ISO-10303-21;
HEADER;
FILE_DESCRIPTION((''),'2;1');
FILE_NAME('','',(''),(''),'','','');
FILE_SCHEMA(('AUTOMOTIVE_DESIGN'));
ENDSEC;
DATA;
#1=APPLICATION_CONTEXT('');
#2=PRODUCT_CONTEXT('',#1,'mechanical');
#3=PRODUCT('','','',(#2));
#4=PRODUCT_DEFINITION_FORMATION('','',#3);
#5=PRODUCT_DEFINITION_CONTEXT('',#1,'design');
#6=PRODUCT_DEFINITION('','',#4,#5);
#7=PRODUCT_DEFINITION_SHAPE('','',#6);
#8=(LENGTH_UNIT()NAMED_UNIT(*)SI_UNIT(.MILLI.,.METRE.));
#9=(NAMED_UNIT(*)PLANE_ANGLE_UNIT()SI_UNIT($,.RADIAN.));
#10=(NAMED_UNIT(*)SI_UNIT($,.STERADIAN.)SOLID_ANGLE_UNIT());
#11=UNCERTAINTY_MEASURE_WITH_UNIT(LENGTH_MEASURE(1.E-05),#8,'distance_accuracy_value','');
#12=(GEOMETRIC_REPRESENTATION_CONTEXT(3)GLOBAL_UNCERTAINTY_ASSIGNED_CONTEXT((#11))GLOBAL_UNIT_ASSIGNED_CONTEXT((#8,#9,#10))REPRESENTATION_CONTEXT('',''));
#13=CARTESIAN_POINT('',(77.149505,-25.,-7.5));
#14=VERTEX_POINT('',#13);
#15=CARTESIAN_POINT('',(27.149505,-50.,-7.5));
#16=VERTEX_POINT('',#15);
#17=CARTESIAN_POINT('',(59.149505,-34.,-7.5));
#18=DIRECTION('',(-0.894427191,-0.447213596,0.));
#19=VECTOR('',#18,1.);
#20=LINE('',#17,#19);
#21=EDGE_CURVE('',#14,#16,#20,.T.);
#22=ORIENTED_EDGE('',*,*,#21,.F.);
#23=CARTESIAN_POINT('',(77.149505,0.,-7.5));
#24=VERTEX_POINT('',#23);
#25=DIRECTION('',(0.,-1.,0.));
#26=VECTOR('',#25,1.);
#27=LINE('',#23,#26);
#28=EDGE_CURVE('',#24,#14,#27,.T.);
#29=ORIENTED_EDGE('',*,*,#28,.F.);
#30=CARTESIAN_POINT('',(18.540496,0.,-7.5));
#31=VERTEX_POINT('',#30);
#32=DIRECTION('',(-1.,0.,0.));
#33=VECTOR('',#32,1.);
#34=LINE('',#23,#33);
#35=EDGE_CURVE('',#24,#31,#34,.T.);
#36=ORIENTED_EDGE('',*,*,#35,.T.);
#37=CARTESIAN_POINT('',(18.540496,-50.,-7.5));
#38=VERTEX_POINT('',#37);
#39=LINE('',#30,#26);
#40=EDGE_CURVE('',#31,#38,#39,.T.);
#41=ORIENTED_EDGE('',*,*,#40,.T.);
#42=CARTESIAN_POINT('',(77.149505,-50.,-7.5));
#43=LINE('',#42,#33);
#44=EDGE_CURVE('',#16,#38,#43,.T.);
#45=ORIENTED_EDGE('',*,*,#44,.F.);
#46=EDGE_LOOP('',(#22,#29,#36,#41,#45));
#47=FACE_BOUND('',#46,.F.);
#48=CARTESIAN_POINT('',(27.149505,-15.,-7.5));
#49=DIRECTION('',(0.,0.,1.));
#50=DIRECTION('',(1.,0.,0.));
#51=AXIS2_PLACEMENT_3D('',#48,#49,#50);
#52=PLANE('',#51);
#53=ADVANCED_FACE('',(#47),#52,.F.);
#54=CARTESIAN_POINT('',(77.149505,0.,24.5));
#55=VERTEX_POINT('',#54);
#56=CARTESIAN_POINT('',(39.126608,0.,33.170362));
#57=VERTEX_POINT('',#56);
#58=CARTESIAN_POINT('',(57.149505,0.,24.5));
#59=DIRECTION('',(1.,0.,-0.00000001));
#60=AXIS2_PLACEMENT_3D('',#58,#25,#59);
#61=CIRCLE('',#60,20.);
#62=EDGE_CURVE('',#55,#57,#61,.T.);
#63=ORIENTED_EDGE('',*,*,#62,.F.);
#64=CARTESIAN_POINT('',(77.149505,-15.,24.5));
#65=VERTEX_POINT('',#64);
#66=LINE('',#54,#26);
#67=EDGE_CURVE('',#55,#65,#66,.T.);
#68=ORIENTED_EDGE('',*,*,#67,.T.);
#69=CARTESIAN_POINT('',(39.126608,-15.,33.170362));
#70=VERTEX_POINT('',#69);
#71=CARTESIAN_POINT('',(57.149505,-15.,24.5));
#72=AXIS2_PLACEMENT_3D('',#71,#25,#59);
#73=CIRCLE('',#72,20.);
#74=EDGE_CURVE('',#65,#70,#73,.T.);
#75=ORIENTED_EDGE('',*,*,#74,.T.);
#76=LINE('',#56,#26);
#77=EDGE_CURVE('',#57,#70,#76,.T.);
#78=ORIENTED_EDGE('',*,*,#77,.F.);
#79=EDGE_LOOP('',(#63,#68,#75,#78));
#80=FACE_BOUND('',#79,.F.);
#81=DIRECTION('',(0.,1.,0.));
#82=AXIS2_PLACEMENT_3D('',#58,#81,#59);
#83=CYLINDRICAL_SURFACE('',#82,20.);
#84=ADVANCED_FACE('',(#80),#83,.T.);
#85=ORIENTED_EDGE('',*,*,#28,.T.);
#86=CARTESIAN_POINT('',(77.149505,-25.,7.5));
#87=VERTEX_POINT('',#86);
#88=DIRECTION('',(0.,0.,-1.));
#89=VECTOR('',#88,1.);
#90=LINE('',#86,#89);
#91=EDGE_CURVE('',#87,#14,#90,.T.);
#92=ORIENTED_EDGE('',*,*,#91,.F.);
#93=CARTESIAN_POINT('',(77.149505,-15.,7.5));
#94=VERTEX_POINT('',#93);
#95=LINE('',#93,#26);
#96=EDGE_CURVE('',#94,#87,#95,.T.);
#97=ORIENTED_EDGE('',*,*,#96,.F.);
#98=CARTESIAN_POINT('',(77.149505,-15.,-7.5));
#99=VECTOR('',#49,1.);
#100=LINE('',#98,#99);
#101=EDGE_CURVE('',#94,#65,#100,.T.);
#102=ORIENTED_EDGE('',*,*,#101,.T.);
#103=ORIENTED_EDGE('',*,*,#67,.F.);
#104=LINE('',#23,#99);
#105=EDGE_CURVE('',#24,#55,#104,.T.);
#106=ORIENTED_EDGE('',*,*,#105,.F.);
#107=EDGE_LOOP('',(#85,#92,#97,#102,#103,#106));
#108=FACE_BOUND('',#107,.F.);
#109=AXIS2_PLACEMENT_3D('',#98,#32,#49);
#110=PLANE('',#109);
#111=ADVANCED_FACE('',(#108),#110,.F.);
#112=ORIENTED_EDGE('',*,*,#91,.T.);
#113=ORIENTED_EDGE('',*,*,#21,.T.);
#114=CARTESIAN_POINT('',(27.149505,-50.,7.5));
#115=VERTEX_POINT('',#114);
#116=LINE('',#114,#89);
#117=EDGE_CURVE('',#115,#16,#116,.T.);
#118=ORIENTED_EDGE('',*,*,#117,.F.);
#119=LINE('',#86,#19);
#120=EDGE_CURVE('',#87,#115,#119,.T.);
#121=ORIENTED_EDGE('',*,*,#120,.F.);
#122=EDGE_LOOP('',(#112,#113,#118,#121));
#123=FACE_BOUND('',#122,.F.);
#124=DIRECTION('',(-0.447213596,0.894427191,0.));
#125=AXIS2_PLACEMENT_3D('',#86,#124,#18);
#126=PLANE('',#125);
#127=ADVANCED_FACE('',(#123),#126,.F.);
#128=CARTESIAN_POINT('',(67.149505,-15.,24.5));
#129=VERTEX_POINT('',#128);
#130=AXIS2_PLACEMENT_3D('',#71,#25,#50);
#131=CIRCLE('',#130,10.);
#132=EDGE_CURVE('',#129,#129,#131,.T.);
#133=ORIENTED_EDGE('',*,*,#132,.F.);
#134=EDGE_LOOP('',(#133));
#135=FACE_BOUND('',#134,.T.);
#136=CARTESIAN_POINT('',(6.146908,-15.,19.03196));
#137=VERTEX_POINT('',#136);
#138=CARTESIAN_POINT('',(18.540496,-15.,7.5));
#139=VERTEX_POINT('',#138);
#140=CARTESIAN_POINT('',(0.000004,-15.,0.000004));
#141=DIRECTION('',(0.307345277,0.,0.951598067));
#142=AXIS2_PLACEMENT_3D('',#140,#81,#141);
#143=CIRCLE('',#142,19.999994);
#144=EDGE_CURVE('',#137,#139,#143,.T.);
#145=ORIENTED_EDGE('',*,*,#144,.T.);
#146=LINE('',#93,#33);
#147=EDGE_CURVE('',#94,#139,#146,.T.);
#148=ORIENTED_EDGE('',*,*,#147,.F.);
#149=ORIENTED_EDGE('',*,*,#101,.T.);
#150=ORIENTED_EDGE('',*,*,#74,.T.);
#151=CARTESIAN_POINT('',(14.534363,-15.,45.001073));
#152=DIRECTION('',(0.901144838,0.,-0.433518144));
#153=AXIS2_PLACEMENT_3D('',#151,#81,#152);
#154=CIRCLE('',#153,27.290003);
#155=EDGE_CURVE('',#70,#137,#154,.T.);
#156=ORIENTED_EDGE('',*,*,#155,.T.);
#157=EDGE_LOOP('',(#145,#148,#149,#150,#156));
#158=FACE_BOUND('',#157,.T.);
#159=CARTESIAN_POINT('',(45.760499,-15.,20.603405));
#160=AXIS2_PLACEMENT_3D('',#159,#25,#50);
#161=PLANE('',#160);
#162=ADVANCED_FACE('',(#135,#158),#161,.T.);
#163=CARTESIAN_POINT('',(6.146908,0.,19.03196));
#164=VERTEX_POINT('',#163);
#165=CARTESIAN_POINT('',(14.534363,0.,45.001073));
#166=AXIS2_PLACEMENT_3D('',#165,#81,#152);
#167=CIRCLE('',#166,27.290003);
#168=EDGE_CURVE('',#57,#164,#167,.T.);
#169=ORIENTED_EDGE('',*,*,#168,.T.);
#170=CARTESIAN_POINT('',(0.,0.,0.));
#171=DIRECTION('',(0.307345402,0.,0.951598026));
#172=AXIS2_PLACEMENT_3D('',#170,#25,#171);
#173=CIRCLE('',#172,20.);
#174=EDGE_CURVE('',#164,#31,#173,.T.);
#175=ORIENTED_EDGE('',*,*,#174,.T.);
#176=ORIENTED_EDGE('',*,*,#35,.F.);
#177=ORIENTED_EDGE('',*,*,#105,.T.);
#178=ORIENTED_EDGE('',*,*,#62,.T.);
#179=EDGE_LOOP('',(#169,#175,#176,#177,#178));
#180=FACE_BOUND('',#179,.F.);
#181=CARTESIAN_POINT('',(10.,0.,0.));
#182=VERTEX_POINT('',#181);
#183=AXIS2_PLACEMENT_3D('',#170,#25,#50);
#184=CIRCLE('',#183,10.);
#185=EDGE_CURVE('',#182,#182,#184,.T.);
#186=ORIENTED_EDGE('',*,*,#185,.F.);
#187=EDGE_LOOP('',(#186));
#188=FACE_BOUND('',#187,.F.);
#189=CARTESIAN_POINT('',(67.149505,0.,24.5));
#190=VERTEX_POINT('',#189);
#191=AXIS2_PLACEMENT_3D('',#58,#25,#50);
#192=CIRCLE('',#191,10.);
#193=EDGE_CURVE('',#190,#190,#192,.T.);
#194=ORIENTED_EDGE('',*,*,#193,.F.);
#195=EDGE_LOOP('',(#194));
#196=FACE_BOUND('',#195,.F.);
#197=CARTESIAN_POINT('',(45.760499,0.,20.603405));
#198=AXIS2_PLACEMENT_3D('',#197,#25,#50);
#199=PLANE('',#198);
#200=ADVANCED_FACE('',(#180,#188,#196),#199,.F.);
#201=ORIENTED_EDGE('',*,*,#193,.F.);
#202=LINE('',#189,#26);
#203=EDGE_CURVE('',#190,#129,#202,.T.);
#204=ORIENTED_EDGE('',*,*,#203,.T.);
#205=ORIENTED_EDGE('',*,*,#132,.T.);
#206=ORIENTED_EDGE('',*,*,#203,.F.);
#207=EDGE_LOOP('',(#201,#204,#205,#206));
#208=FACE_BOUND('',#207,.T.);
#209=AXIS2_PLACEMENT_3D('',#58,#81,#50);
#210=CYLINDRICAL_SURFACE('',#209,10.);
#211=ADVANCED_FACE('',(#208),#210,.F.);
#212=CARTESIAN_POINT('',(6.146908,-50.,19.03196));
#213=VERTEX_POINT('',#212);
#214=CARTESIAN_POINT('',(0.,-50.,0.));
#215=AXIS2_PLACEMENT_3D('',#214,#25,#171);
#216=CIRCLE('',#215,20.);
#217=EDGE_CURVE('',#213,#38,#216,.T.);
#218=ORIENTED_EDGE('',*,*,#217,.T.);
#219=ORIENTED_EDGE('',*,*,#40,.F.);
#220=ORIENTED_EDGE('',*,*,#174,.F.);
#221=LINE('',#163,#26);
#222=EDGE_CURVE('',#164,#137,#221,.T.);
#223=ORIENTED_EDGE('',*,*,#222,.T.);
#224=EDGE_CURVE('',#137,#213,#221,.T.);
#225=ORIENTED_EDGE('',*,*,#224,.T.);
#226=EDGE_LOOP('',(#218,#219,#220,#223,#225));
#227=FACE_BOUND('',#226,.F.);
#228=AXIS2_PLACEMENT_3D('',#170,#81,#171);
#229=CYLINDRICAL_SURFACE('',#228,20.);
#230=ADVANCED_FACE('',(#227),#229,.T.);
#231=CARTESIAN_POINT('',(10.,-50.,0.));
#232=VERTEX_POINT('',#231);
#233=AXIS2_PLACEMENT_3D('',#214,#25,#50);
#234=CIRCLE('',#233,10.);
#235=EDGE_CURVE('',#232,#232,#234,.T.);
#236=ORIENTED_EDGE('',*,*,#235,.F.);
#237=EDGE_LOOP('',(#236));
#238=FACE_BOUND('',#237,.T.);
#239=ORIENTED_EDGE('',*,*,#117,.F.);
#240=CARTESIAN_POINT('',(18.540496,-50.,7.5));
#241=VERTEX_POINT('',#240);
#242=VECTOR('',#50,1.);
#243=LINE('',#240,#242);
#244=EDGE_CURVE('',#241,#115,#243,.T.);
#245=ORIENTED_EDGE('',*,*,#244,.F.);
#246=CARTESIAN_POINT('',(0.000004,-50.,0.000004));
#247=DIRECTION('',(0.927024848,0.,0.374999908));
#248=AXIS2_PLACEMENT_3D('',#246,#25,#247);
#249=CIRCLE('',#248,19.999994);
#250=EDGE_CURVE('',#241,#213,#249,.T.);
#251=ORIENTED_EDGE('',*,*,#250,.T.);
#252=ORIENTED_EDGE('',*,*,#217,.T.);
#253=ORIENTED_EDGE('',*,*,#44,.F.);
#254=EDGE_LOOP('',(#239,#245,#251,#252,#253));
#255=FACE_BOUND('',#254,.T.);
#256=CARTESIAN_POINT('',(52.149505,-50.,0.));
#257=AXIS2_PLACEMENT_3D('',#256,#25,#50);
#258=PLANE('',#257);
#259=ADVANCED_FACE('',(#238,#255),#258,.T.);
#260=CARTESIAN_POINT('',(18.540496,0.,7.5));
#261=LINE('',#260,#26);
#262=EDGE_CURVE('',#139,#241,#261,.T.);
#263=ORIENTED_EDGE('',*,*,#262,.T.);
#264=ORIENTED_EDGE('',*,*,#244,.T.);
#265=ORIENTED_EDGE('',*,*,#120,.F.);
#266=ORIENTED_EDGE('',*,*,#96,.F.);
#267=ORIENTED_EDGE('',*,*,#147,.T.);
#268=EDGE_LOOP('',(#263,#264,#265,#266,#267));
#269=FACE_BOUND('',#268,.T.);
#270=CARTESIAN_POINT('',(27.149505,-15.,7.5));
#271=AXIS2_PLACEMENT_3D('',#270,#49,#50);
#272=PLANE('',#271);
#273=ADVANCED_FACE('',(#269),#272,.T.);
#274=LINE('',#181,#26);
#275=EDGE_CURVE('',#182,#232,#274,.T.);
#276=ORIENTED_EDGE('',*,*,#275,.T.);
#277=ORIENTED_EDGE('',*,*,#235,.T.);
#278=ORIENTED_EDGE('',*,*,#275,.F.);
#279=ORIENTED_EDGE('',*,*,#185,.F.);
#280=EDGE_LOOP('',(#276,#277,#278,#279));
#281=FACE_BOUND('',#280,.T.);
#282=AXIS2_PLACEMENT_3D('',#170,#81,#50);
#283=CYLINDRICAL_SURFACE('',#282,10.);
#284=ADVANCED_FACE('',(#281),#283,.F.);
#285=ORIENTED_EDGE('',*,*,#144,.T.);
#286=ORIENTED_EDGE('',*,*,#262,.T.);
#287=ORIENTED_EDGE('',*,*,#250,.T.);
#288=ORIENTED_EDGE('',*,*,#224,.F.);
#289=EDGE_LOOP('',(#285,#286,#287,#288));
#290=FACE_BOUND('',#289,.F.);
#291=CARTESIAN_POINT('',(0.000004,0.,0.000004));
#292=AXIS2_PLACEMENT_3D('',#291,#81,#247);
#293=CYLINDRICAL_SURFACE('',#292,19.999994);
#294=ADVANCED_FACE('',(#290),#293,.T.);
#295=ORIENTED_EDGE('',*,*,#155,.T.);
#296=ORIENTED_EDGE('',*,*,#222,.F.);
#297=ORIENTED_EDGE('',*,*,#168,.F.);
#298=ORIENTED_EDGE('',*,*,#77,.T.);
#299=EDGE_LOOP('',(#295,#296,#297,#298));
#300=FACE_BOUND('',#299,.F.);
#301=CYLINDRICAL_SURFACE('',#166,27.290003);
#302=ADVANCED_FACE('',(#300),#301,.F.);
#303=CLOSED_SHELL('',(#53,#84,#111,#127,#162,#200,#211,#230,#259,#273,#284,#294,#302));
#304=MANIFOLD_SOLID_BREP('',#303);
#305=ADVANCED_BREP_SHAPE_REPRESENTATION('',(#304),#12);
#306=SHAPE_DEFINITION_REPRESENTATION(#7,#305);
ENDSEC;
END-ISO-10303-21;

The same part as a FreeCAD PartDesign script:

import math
import FreeCAD as App
import Part
import Sketcher

V = App.Vector


def add_polygon(sketch, points):
    """Adds a closed chain of lines whose ends are joined by coincident constraints."""
    first, n = sketch.GeometryCount, len(points)
    for a, b in zip(points, points[1:] + points[:1]):
        sketch.addGeometry(Part.LineSegment(App.Vector(*a, 0), App.Vector(*b, 0)), False)
    for i in range(n):
        sketch.addConstraint(Sketcher.Constraint("Coincident", first + i, 2, first + (i + 1) % n, 1))

doc = App.newDocument("Part")
body = doc.addObject("PartDesign::Body", "Body")

sketch1 = body.newObject("Sketcher::SketchObject", "Sketch")
sketch1.AttachmentSupport = (doc.getObject("XZ_Plane"), [""])
sketch1.MapMode = "FlatFace"
sketch1.addGeometry([
    Part.ArcOfCircle(Part.Circle(V(0, 0, 0), V(0, 0, 1), 20), math.radians(22), math.radians(72)),
    Part.ArcOfCircle(Part.Circle(V(0, 0, 0), V(0, 0, 1), 20), math.radians(72), math.radians(338)),
    Part.LineSegment(V(19, -8, 0), V(27, -8, 0)),
    Part.LineSegment(V(27, -8, 0), V(27, 8, 0)),
    Part.LineSegment(V(27, 8, 0), V(19, 8, 0)),
    Part.Circle(V(0, 0, 0), V(0, 0, 1), 10),
], False)
sketch1.addConstraint([
    Sketcher.Constraint("Tangent", 0, 2, 1, 1),
    Sketcher.Constraint("Coincident", 1, 2, 2, 1),
    Sketcher.Constraint("Coincident", 2, 2, 3, 1),
    Sketcher.Constraint("Coincident", 3, 2, 4, 1),
    Sketcher.Constraint("Coincident", 4, 2, 0, 1),
    Sketcher.Constraint("Horizontal", 2),
    Sketcher.Constraint("Vertical", 3),
    Sketcher.Constraint("Horizontal", 4),
    Sketcher.Constraint("Coincident", 0, 3, -1, 1),
    Sketcher.Constraint("Coincident", 5, 3, -1, 1),
    Sketcher.Constraint("Symmetric", 1, 2, 4, 2, -1),
    Sketcher.Constraint("Diameter", 5, 20.0),
    Sketcher.Constraint("Radius", 1, 20.0),
    Sketcher.Constraint("DistanceY", 3, 1, 3, 2, 15.0),
    Sketcher.Constraint("DistanceX", 2, 1, 2, 2, 8.609009),
    Sketcher.Constraint("DistanceX", -1, 1, 0, 2, 6.146908),
])
pad1 = body.newObject("PartDesign::Pad", "Pad")
pad1.Profile = sketch1
pad1.Length = 50

sketch2 = body.newObject("Sketcher::SketchObject", "Sketch001")
sketch2.AttachmentSupport = (doc.getObject("XZ_Plane"), [""])
sketch2.MapMode = "FlatFace"
sketch2.addGeometry([
    Part.ArcOfCircle(Part.Circle(V(57, 25, 0), V(0, 0, 1), 20), math.radians(0), math.radians(154)),
    Part.ArcOfCircle(Part.Circle(V(15, 45, 0), V(0, 0, 1), 27), math.radians(-108), math.radians(-26)),
    Part.ArcOfCircle(Part.Circle(V(0, 0, 0), V(0, 0, 1), 20), math.radians(22), math.radians(72)),
    Part.LineSegment(V(19, 8, 0), V(27, 8, 0)),
    Part.LineSegment(V(27, 8, 0), V(27, -8, 0)),
    Part.LineSegment(V(27, -8, 0), V(77, -8, 0)),
    Part.LineSegment(V(77, -8, 0), V(77, 24, 0)),
    Part.Circle(V(57, 24, 0), V(0, 0, 1), 10),
], False)
sketch2.addConstraint([
    Sketcher.Constraint("Tangent", 0, 2, 1, 2),
    Sketcher.Constraint("Tangent", 1, 1, 2, 2),
    Sketcher.Constraint("Coincident", 2, 1, 3, 1),
    Sketcher.Constraint("Coincident", 3, 2, 4, 1),
    Sketcher.Constraint("Coincident", 4, 2, 5, 1),
    Sketcher.Constraint("Coincident", 5, 2, 6, 1),
    Sketcher.Constraint("Tangent", 6, 2, 0, 1),
    Sketcher.Constraint("Horizontal", 3),
    Sketcher.Constraint("Vertical", 4),
    Sketcher.Constraint("Horizontal", 5),
    Sketcher.Constraint("Vertical", 6),
    Sketcher.Constraint("Coincident", 2, 3, -1, 1),
    Sketcher.Constraint("Coincident", 7, 3, 0, 3),
    Sketcher.Constraint("Diameter", 7, 20.0),
    Sketcher.Constraint("Radius", 0, 20.0),
    Sketcher.Constraint("DistanceX", 5, 1, 5, 2, 50.0),
    Sketcher.Constraint("DistanceY", 4, 2, 4, 1, 15.0),
    Sketcher.Constraint("DistanceY", 6, 1, 6, 2, 32.0),
    Sketcher.Constraint("DistanceY", -1, 1, 0, 3, 24.5),
    Sketcher.Constraint("Radius", 1, 27.290003),
    Sketcher.Constraint("Radius", 2, 19.999994),
    Sketcher.Constraint("DistanceX", 3, 1, 3, 2, 8.609009),
])
pad2 = body.newObject("PartDesign::Pad", "Pad001")
pad2.Profile = sketch2
pad2.Length = 15

sketch3 = body.newObject("Sketcher::SketchObject", "Sketch002")
sketch3.AttachmentSupport = (doc.getObject("XZ_Plane"), [""])
sketch3.MapMode = "FlatFace"
sketch3.AttachmentOffset = App.Placement(V(0, 0, 15), App.Rotation())
add_polygon(sketch3, [(27, 8), (27, -8), (77, -8), (77, 8)])
sketch3.addConstraint([
    Sketcher.Constraint("Vertical", 0),
    Sketcher.Constraint("Horizontal", 1),
    Sketcher.Constraint("Vertical", 2),
    Sketcher.Constraint("Horizontal", 3),
    Sketcher.Constraint("DistanceX", 1, 1, 1, 2, 50.0),
    Sketcher.Constraint("DistanceY", 0, 2, 0, 1, 15.0),
    Sketcher.Constraint("DistanceY", 0, 2, -1, 1, 7.5),
    Sketcher.Constraint("DistanceX", -1, 1, 0, 2, 27.149505),
])
pad3 = body.newObject("PartDesign::Pad", "Pad002")
pad3.Profile = sketch3
pad3.Length = 35

sketch4 = body.newObject("Sketcher::SketchObject", "Sketch003")
sketch4.AttachmentSupport = (doc.getObject("XY_Plane"), [""])
sketch4.MapMode = "FlatFace"
sketch4.AttachmentOffset = App.Placement(V(0, 0, 7.5), App.Rotation())
add_polygon(sketch4, [(77, -25), (27, -50), (77, -50)])
sketch4.addConstraint([
    Sketcher.Constraint("Horizontal", 1),
    Sketcher.Constraint("Vertical", 2),
    Sketcher.Constraint("DistanceX", 1, 1, 1, 2, 50.0),
    Sketcher.Constraint("DistanceY", 2, 1, 2, 2, 25.0),
    Sketcher.Constraint("DistanceY", 0, 2, -1, 1, 50.0),
    Sketcher.Constraint("DistanceX", -1, 1, 0, 2, 27.149505),
])
pad4 = body.newObject("PartDesign::Pad", "Pad003")
pad4.Profile = sketch4
pad4.Length = 27.501
pad4.Reversed = True

sketch5 = body.newObject("Sketcher::SketchObject", "Sketch004")
sketch5.AttachmentSupport = (doc.getObject("XY_Plane"), [""])
sketch5.MapMode = "FlatFace"
sketch5.AttachmentOffset = App.Placement(V(0, 0, 7.5), App.Rotation())
add_polygon(sketch5, [(77, -25), (27, -50), (77, -50)])
sketch5.addConstraint([
    Sketcher.Constraint("Horizontal", 1),
    Sketcher.Constraint("Vertical", 2),
    Sketcher.Constraint("DistanceX", 1, 1, 1, 2, 50.0),
    Sketcher.Constraint("DistanceY", 2, 1, 2, 2, 25.0),
    Sketcher.Constraint("DistanceY", 0, 2, -1, 1, 50.0),
    Sketcher.Constraint("DistanceX", -1, 1, 0, 2, 27.149505),
])
pocket1 = body.newObject("PartDesign::Pocket", "Pocket")
pocket1.Profile = sketch5
pocket1.Length = 257.5

doc.recompute()
